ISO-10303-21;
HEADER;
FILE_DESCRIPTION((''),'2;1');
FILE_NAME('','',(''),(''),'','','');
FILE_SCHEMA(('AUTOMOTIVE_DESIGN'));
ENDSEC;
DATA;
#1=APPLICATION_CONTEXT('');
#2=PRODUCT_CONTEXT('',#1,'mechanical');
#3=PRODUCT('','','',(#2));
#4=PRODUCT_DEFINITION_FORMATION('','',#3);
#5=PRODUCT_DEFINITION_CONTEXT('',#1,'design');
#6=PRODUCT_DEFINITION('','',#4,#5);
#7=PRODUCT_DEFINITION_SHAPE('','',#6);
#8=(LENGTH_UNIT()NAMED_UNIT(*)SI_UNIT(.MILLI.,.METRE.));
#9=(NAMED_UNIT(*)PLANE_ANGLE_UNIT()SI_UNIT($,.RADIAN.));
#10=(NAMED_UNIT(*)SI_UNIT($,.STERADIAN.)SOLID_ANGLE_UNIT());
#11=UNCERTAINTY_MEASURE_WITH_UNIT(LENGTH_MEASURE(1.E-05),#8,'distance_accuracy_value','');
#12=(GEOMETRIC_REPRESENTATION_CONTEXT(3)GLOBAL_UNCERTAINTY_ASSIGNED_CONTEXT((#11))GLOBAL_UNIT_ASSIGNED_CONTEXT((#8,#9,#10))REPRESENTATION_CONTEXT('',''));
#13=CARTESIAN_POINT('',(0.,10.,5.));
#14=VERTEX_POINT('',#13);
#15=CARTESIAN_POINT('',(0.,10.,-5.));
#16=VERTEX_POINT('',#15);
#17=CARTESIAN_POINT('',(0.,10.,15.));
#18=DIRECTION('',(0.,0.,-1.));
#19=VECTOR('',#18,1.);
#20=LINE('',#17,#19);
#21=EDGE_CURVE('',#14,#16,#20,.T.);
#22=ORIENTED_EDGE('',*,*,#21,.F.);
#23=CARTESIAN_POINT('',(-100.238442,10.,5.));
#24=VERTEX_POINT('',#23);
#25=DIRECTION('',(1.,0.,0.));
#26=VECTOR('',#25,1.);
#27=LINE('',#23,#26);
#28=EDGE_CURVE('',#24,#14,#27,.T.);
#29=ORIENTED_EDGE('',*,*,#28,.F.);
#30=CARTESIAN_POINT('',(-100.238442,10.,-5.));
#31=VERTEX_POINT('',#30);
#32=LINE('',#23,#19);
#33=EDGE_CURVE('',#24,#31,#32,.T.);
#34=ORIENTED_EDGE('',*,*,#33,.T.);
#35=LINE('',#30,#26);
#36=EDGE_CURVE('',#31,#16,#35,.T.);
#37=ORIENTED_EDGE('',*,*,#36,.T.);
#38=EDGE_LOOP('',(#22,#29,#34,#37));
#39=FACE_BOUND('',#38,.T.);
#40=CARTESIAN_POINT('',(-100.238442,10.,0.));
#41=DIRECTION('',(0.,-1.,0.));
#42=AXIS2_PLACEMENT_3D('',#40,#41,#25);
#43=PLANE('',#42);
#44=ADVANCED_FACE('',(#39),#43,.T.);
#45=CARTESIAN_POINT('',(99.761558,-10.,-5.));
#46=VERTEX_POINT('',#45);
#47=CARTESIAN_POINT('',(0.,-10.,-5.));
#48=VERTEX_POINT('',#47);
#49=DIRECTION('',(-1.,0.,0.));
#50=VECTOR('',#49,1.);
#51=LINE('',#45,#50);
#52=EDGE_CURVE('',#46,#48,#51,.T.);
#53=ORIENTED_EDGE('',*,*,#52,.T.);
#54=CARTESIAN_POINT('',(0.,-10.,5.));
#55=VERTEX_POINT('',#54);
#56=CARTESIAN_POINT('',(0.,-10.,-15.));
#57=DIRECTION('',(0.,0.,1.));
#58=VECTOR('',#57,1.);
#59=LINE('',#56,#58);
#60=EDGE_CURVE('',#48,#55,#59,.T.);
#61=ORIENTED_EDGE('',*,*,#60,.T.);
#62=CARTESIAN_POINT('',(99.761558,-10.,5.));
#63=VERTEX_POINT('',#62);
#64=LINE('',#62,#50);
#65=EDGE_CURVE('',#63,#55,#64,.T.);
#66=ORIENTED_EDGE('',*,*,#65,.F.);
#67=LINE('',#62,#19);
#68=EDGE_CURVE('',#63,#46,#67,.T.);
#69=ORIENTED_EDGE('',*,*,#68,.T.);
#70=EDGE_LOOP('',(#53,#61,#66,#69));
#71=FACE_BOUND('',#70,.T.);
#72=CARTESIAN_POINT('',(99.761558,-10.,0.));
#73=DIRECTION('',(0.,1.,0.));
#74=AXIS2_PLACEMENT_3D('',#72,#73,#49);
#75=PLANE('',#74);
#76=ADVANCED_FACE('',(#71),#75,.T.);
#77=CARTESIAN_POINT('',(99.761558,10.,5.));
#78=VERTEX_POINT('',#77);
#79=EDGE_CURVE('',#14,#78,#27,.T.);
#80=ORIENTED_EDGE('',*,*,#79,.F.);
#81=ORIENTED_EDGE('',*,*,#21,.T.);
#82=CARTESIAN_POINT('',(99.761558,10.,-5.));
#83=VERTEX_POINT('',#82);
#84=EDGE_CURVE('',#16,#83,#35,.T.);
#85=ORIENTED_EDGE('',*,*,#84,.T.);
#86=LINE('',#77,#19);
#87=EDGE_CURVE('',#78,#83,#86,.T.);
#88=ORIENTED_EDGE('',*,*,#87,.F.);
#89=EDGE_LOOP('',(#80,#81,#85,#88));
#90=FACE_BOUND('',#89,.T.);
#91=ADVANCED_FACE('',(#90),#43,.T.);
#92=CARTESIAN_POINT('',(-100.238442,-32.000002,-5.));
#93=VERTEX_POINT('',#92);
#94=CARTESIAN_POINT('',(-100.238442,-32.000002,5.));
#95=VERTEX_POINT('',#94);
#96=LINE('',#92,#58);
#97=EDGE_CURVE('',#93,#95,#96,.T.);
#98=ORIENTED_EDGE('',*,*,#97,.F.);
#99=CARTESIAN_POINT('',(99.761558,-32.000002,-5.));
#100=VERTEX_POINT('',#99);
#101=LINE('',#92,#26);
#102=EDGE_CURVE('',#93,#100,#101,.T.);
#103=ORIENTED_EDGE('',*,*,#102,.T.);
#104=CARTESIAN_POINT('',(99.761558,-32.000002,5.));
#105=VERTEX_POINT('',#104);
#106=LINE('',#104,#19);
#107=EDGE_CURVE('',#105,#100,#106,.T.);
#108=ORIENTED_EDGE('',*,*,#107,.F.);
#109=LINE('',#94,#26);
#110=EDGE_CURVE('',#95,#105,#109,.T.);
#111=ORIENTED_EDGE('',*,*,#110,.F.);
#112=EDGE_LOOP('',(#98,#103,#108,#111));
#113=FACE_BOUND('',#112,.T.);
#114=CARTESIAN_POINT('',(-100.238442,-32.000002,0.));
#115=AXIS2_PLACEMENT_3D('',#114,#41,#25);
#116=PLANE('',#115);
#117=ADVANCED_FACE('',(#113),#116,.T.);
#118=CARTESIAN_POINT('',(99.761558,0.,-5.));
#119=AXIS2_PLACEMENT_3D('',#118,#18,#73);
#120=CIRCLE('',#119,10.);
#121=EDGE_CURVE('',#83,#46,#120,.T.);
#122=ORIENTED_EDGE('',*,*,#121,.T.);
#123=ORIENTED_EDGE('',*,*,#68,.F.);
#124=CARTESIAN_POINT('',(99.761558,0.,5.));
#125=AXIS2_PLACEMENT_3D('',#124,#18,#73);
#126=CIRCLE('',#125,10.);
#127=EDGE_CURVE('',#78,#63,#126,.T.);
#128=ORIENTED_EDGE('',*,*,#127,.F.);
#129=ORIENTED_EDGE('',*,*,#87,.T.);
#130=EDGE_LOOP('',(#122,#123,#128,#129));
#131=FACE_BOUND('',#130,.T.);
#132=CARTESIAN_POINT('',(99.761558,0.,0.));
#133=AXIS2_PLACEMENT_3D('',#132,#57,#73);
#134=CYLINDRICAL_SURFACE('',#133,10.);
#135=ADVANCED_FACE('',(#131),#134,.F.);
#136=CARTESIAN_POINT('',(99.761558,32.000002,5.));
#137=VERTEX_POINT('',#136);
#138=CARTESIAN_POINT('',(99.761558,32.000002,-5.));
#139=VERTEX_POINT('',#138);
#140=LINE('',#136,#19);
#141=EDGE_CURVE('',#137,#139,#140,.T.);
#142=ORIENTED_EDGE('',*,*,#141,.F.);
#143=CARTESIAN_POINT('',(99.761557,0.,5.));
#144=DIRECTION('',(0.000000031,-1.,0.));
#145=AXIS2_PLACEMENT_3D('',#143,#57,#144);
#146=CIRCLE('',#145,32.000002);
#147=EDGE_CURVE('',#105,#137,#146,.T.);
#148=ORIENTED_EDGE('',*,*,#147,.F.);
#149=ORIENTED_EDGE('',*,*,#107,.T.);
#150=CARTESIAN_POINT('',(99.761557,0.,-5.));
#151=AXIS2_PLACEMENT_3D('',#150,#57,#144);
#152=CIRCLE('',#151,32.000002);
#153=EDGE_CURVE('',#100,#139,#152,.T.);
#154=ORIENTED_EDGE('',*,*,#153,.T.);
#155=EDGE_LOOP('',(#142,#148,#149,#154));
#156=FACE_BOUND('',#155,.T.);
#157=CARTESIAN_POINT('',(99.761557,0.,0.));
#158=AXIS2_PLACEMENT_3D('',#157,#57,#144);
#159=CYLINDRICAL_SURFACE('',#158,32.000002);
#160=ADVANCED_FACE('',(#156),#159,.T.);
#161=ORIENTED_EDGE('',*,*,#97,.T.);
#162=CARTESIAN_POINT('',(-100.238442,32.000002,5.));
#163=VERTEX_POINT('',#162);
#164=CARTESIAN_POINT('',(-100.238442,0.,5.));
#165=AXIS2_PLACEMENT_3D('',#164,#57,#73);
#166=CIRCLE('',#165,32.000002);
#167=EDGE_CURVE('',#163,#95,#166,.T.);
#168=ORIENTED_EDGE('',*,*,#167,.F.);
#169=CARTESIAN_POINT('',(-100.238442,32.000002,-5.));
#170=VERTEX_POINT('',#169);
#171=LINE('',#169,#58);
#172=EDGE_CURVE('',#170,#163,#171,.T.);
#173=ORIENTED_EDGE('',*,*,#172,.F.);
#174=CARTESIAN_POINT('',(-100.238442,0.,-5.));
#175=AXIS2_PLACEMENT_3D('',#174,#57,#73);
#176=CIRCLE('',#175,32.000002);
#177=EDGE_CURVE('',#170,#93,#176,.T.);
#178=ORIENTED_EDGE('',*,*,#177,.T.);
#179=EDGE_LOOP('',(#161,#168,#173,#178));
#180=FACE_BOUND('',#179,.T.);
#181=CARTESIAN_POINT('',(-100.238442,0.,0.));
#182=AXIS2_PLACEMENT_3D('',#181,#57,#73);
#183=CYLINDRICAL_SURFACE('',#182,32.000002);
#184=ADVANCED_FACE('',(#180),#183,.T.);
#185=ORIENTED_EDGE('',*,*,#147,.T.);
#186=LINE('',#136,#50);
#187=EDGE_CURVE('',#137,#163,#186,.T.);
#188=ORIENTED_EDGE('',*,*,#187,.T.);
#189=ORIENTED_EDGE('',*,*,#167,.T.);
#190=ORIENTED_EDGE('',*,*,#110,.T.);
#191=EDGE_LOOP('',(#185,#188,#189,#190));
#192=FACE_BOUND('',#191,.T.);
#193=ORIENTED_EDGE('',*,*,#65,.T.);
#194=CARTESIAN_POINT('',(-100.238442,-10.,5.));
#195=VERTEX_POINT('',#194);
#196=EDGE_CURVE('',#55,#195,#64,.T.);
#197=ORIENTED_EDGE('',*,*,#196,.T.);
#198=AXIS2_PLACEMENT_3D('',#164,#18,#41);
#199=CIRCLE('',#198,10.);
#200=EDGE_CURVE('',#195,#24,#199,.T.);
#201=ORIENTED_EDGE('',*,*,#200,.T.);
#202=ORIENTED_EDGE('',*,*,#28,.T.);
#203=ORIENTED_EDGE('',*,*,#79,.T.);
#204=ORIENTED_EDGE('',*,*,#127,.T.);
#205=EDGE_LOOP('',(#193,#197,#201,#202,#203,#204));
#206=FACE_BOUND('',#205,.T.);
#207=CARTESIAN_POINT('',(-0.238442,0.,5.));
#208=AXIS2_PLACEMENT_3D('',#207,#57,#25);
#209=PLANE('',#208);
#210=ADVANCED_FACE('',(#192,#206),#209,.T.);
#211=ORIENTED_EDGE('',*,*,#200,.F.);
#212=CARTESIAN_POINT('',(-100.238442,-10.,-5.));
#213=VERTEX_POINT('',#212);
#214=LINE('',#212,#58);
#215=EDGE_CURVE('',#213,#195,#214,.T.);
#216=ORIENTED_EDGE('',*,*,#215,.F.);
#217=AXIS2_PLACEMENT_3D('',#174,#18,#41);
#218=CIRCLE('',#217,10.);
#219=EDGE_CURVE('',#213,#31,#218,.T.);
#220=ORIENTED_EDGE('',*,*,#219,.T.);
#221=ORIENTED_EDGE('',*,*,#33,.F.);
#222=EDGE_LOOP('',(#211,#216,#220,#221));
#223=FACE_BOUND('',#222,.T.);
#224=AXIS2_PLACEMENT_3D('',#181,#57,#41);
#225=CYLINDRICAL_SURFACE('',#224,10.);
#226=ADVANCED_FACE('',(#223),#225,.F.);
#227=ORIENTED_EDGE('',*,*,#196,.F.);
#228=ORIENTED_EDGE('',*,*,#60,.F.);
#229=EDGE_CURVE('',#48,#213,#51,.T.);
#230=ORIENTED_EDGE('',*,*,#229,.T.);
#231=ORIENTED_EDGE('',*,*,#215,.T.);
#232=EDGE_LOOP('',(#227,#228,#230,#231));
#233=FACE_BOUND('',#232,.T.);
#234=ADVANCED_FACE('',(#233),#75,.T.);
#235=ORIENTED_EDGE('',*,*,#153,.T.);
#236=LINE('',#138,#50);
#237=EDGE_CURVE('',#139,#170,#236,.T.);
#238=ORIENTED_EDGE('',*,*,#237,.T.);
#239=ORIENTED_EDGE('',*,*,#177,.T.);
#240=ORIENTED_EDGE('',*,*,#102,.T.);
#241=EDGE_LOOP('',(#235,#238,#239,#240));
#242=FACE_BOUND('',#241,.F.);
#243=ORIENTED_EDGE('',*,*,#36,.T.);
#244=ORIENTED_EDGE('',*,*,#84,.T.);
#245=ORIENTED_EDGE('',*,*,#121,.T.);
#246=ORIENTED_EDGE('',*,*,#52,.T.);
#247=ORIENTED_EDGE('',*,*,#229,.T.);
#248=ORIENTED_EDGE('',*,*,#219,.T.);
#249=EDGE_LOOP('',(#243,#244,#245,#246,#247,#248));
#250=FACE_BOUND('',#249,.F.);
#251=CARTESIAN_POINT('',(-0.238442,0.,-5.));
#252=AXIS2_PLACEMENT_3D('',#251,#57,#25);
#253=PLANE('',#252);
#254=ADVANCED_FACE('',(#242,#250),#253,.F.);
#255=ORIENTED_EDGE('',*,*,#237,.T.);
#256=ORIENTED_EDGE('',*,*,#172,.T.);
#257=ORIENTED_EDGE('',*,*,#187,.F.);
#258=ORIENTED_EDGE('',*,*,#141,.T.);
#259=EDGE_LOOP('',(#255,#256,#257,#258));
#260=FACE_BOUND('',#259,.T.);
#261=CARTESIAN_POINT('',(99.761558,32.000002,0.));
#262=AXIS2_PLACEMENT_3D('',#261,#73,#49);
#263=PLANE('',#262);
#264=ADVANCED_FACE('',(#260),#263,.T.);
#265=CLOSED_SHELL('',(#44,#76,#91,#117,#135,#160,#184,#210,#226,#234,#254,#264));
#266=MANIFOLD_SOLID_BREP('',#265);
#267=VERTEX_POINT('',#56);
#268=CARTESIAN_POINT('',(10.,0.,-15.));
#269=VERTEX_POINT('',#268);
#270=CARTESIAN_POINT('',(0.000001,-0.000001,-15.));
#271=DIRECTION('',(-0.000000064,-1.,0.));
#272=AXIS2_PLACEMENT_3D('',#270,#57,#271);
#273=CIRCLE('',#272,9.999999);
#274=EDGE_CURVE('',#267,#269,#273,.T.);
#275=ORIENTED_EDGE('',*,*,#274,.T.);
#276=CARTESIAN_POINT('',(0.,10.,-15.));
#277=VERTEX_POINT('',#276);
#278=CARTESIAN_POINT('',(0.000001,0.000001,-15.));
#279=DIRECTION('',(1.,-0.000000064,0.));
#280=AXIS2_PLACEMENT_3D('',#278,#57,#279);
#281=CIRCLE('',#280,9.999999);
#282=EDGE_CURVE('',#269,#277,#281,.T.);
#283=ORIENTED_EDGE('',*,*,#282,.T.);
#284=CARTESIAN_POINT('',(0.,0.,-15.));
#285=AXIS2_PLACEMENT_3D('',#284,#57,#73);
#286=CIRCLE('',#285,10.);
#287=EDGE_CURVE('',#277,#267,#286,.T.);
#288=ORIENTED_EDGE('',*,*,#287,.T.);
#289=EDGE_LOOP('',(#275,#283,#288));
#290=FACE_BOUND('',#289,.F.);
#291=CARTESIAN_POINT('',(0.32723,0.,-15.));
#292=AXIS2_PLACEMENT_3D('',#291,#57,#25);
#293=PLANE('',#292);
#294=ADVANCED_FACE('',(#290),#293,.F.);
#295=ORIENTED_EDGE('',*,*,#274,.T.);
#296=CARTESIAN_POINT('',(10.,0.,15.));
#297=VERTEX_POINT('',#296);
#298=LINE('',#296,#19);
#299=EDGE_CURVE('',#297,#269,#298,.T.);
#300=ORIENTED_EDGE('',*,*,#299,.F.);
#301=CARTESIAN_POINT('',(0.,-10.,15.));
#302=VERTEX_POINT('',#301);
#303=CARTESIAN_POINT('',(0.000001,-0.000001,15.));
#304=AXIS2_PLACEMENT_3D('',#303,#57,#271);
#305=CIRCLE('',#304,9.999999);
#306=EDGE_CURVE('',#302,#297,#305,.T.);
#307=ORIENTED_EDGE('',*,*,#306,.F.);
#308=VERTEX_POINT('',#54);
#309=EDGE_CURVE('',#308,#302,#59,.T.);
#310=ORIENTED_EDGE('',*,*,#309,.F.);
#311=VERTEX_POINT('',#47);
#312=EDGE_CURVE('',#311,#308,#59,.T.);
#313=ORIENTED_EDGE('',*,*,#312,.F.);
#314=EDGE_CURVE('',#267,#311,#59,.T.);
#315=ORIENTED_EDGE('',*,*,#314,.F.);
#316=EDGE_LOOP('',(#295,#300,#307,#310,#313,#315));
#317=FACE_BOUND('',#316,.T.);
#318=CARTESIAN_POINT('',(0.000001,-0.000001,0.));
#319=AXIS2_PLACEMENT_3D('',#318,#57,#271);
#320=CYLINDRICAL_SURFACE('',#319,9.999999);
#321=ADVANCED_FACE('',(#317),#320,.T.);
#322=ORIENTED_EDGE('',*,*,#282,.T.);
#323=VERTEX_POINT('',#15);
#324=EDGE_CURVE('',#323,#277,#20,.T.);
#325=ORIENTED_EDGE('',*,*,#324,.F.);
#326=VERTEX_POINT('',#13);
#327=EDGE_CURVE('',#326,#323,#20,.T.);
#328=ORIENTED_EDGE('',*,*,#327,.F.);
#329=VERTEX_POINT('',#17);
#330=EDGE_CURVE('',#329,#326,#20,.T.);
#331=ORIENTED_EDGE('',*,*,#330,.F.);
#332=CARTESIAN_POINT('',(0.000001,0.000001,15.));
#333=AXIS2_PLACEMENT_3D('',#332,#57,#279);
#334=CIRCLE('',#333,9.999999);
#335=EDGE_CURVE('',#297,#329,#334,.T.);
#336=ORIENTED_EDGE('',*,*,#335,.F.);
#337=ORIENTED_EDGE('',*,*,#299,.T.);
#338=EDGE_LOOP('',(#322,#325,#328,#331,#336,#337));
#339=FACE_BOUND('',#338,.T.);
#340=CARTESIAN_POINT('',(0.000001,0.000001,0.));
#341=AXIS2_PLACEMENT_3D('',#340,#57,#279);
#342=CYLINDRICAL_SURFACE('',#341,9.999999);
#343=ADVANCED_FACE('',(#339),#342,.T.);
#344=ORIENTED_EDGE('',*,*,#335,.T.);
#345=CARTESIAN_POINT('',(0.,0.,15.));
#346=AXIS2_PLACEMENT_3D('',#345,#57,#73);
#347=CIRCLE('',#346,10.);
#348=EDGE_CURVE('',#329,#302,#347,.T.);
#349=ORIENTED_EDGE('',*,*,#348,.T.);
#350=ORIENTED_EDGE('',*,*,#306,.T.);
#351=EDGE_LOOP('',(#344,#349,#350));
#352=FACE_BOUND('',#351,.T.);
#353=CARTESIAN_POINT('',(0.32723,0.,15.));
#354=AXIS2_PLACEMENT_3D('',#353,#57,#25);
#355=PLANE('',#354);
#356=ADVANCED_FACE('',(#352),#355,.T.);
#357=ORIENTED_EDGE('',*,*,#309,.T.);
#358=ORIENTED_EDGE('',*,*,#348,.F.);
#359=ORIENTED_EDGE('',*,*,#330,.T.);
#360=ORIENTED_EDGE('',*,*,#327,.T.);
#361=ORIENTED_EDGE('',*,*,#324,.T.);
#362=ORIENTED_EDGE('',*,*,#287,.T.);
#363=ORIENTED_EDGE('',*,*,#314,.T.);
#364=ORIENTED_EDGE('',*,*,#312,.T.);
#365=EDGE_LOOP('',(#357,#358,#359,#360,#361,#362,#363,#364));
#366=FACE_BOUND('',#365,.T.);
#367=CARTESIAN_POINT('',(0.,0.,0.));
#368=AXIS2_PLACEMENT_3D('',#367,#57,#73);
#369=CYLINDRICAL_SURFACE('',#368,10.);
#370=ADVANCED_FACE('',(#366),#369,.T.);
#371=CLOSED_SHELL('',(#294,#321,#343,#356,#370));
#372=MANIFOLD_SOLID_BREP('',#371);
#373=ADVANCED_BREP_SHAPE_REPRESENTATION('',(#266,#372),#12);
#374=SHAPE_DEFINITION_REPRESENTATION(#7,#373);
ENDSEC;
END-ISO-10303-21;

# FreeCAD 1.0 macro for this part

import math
import FreeCAD as App
import Part
import Sketcher
from FreeCAD import Vector
Q = App.Units.Quantity

doc = App.newDocument("Part")
body = doc.addObject("PartDesign::Body", "Body")
body.AllowCompound = True

sketch1 = body.newObject("Sketcher::SketchObject", "Sketch")
sketch1.AttachmentSupport = (doc.getObject("XY_Plane"), [""])
sketch1.MapMode = "FlatFace"
sketch1.addGeometry([
    Part.LineSegment(Vector(100, 32, 0), Vector(-100, 32, 0)),
    Part.ArcOfCircle(Part.Circle(Vector(-100, 0, 0), Vector(0, 0, 1), 32), math.radians(90), math.radians(270)),
    Part.LineSegment(Vector(-100, -32, 0), Vector(100, -32, 0)),
    Part.ArcOfCircle(Part.Circle(Vector(100, 0, 0), Vector(0, 0, 1), 32), math.radians(-90), math.radians(90)),
    Part.LineSegment(Vector(100, -10, 0), Vector(-100, -10, 0)),
    Part.ArcOfCircle(Part.Circle(Vector(-100, 0, 0), Vector(0, 0, 1), 10), math.radians(90), math.radians(270)),
    Part.LineSegment(Vector(-100, 10, 0), Vector(100, 10, 0)),
    Part.ArcOfCircle(Part.Circle(Vector(100, 0, 0), Vector(0, 0, 1), 10), math.radians(-90), math.radians(90)),
], False)
sketch1.addConstraint([
    Sketcher.Constraint("Tangent", 0, 2, 1, 1),
    Sketcher.Constraint("Tangent", 1, 2, 2, 1),
    Sketcher.Constraint("Tangent", 2, 2, 3, 1),
    Sketcher.Constraint("Tangent", 3, 2, 0, 1),
    Sketcher.Constraint("Tangent", 4, 2, 5, 2),
    Sketcher.Constraint("Tangent", 5, 1, 6, 1),
    Sketcher.Constraint("Tangent", 6, 2, 7, 2),
    Sketcher.Constraint("Tangent", 7, 1, 4, 1),
    Sketcher.Constraint("Horizontal", 0),
    Sketcher.Constraint("Horizontal", 2),
    Sketcher.Constraint("Horizontal", 4),
    Sketcher.Constraint("Horizontal", 6),
    Sketcher.Constraint("Coincident", 5, 3, 1, 3),
    Sketcher.Constraint("PointOnObject", 1, 3, -1),
    Sketcher.Constraint("Vertical", 7, 3, 2, 2),
    Sketcher.Constraint("Radius", 5, Q("10 mm")),
    Sketcher.Constraint("DistanceX", 0, 2, 0, 1, Q("200 mm")),
    Sketcher.Constraint("DistanceY", -1, 1, 3, 2, Q("32.000002 mm")),
    Sketcher.Constraint("DistanceX", 1, 3, -1, 1, Q("100.238442 mm")),
])
pad1 = body.newObject("PartDesign::Pad", "Pad")
pad1.Profile = sketch1
pad1.Length = 10
pad1.Midplane = True

sketch2 = body.newObject("Sketcher::SketchObject", "Sketch001")
sketch2.AttachmentSupport = (doc.getObject("XY_Plane"), [""])
sketch2.MapMode = "FlatFace"
sketch2.addGeometry([
    Part.ArcOfCircle(Part.Circle(Vector(0, 0, 0), Vector(0, 0, 1), 10), math.radians(90), math.radians(270)),
    Part.ArcOfCircle(Part.Circle(Vector(0, 0, 0), Vector(0, 0, 1), 10), math.radians(-90), math.radians(0)),
    Part.ArcOfCircle(Part.Circle(Vector(0, 0, 0), Vector(0, 0, 1), 10), math.radians(0), math.radians(90)),
], False)
sketch2.addConstraint([
    Sketcher.Constraint("Tangent", 0, 2, 1, 1),
    Sketcher.Constraint("Tangent", 1, 2, 2, 1),
    Sketcher.Constraint("Tangent", 2, 2, 0, 1),
    Sketcher.Constraint("Coincident", 0, 3, -1, 1),
    Sketcher.Constraint("PointOnObject", 0, 2, -2),
    Sketcher.Constraint("PointOnObject", 1, 2, -1),
    Sketcher.Constraint("PointOnObject", 2, 2, -2),
    Sketcher.Constraint("Radius", 0, Q("10 mm")),
])
pad2 = body.newObject("PartDesign::Pad", "Pad001")
pad2.Profile = sketch2
pad2.Length = 30
pad2.Midplane = True

doc.recompute()
